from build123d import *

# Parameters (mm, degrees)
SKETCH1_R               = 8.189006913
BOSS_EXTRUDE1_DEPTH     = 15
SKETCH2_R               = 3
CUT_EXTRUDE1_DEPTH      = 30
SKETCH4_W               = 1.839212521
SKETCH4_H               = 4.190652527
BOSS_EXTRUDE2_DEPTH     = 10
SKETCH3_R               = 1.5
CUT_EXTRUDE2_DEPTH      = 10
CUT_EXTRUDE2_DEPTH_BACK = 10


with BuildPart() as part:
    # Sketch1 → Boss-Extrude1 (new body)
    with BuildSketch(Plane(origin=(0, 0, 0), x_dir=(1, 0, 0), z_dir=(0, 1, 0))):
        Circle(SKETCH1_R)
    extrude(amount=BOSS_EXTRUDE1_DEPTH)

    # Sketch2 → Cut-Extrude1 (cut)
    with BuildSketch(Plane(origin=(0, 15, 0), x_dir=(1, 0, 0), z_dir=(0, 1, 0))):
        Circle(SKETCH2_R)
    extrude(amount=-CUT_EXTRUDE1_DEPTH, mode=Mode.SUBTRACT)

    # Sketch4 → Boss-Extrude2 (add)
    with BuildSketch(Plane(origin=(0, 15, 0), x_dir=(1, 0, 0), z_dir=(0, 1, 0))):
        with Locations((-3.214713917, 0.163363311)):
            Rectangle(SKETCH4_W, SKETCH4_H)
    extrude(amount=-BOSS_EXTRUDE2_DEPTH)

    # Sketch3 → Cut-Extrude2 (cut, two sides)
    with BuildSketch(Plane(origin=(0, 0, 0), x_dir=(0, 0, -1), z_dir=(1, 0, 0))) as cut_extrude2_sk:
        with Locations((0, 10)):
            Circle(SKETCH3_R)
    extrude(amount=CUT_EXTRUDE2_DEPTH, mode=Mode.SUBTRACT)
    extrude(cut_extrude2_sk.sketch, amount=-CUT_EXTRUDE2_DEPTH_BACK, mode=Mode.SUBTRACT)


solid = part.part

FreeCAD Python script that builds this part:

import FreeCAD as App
import Part
import Sketcher
from FreeCAD import Vector


def add_polygon(sketch, points):
    """Adds a closed chain of lines whose ends are joined by coincident constraints."""
    first, n = sketch.GeometryCount, len(points)
    for a, b in zip(points, points[1:] + points[:1]):
        sketch.addGeometry(Part.LineSegment(App.Vector(*a, 0), App.Vector(*b, 0)), False)
    for i in range(n):
        sketch.addConstraint(Sketcher.Constraint("Coincident", first + i, 2, first + (i + 1) % n, 1))

doc = App.newDocument("Part")
body = doc.addObject("PartDesign::Body", "Body")

# Sketch on XZ plane
sketch1 = body.newObject("Sketcher::SketchObject", "Sketch")
sketch1.AttachmentSupport = (doc.getObject("XZ_Plane"), [""])
sketch1.MapMode = "FlatFace"
sketch1.addGeometry(Part.Circle(Vector(0, 0, 0), Vector(0, 0, 1), 8.189007), False)
sketch1.addConstraint([
    Sketcher.Constraint("Coincident", 0, 3, -1, 1),
    Sketcher.Constraint("Diameter", 0, 16.378014),
])
pad1 = body.newObject("PartDesign::Pad", "Pad")
pad1.Profile = sketch1
pad1.Length = 15
pad1.Reversed = True

# Sketch on XZ plane
sketch2 = body.newObject("Sketcher::SketchObject", "Sketch001")
sketch2.AttachmentSupport = (doc.getObject("XZ_Plane"), [""])
sketch2.MapMode = "FlatFace"
sketch2.AttachmentOffset = App.Placement(Vector(0, 0, -15), App.Rotation())
sketch2.addGeometry(Part.Circle(Vector(0, 0, 0), Vector(0, 0, 1), 3), False)
sketch2.addConstraint([
    Sketcher.Constraint("Coincident", 0, 3, -1, 1),
    Sketcher.Constraint("Diameter", 0, 6.0),
])
pocket1 = body.newObject("PartDesign::Pocket", "Pocket")
pocket1.Profile = sketch2
pocket1.Length = 30
pocket1.Reversed = True

# Sketch on XZ plane
sketch3 = body.newObject("Sketcher::SketchObject", "Sketch002")
sketch3.AttachmentSupport = (doc.getObject("XZ_Plane"), [""])
sketch3.MapMode = "FlatFace"
sketch3.AttachmentOffset = App.Placement(Vector(0, 0, -15), App.Rotation())
add_polygon(sketch3, [(-4.13432, -2.25869), (-4.13432, 1.931963), (-2.295108, 1.931963), (-2.295108, -2.25869)])  # lines 0-3
sketch3.addConstraint([
    Sketcher.Constraint("Vertical", 0),
    Sketcher.Constraint("Horizontal", 1),
    Sketcher.Constraint("Vertical", 2),
    Sketcher.Constraint("Horizontal", 3),
    Sketcher.Constraint("DistanceX", 1, 1, 1, 2, 1.839213),
    Sketcher.Constraint("DistanceY", 0, 1, 0, 2, 4.190653),
    Sketcher.Constraint("DistanceX", 0, 2, -1, 1, 4.13432),
    Sketcher.Constraint("DistanceY", 2, 2, -1, 1, 2.25869),
])
pad2 = body.newObject("PartDesign::Pad", "Pad001")
pad2.Profile = sketch3
pad2.Length = 10

# Sketch on YZ plane
sketch4 = body.newObject("Sketcher::SketchObject", "Sketch003")
sketch4.AttachmentSupport = (doc.getObject("YZ_Plane"), [""])
sketch4.MapMode = "FlatFace"
sketch4.addGeometry(Part.Circle(Vector(10, 0, 0), Vector(0, 0, 1), 1.5), False)
sketch4.addConstraint([
    Sketcher.Constraint("PointOnObject", 0, 3, -1),
    Sketcher.Constraint("Diameter", 0, 3.0),
    Sketcher.Constraint("DistanceX", -1, 1, 0, 3, 10.0),
])
pocket2 = body.newObject("PartDesign::Pocket", "Pocket001")
pocket2.Profile = sketch4
pocket2.Type = "ThroughAll"
pocket2.Midplane = True

doc.recompute()
